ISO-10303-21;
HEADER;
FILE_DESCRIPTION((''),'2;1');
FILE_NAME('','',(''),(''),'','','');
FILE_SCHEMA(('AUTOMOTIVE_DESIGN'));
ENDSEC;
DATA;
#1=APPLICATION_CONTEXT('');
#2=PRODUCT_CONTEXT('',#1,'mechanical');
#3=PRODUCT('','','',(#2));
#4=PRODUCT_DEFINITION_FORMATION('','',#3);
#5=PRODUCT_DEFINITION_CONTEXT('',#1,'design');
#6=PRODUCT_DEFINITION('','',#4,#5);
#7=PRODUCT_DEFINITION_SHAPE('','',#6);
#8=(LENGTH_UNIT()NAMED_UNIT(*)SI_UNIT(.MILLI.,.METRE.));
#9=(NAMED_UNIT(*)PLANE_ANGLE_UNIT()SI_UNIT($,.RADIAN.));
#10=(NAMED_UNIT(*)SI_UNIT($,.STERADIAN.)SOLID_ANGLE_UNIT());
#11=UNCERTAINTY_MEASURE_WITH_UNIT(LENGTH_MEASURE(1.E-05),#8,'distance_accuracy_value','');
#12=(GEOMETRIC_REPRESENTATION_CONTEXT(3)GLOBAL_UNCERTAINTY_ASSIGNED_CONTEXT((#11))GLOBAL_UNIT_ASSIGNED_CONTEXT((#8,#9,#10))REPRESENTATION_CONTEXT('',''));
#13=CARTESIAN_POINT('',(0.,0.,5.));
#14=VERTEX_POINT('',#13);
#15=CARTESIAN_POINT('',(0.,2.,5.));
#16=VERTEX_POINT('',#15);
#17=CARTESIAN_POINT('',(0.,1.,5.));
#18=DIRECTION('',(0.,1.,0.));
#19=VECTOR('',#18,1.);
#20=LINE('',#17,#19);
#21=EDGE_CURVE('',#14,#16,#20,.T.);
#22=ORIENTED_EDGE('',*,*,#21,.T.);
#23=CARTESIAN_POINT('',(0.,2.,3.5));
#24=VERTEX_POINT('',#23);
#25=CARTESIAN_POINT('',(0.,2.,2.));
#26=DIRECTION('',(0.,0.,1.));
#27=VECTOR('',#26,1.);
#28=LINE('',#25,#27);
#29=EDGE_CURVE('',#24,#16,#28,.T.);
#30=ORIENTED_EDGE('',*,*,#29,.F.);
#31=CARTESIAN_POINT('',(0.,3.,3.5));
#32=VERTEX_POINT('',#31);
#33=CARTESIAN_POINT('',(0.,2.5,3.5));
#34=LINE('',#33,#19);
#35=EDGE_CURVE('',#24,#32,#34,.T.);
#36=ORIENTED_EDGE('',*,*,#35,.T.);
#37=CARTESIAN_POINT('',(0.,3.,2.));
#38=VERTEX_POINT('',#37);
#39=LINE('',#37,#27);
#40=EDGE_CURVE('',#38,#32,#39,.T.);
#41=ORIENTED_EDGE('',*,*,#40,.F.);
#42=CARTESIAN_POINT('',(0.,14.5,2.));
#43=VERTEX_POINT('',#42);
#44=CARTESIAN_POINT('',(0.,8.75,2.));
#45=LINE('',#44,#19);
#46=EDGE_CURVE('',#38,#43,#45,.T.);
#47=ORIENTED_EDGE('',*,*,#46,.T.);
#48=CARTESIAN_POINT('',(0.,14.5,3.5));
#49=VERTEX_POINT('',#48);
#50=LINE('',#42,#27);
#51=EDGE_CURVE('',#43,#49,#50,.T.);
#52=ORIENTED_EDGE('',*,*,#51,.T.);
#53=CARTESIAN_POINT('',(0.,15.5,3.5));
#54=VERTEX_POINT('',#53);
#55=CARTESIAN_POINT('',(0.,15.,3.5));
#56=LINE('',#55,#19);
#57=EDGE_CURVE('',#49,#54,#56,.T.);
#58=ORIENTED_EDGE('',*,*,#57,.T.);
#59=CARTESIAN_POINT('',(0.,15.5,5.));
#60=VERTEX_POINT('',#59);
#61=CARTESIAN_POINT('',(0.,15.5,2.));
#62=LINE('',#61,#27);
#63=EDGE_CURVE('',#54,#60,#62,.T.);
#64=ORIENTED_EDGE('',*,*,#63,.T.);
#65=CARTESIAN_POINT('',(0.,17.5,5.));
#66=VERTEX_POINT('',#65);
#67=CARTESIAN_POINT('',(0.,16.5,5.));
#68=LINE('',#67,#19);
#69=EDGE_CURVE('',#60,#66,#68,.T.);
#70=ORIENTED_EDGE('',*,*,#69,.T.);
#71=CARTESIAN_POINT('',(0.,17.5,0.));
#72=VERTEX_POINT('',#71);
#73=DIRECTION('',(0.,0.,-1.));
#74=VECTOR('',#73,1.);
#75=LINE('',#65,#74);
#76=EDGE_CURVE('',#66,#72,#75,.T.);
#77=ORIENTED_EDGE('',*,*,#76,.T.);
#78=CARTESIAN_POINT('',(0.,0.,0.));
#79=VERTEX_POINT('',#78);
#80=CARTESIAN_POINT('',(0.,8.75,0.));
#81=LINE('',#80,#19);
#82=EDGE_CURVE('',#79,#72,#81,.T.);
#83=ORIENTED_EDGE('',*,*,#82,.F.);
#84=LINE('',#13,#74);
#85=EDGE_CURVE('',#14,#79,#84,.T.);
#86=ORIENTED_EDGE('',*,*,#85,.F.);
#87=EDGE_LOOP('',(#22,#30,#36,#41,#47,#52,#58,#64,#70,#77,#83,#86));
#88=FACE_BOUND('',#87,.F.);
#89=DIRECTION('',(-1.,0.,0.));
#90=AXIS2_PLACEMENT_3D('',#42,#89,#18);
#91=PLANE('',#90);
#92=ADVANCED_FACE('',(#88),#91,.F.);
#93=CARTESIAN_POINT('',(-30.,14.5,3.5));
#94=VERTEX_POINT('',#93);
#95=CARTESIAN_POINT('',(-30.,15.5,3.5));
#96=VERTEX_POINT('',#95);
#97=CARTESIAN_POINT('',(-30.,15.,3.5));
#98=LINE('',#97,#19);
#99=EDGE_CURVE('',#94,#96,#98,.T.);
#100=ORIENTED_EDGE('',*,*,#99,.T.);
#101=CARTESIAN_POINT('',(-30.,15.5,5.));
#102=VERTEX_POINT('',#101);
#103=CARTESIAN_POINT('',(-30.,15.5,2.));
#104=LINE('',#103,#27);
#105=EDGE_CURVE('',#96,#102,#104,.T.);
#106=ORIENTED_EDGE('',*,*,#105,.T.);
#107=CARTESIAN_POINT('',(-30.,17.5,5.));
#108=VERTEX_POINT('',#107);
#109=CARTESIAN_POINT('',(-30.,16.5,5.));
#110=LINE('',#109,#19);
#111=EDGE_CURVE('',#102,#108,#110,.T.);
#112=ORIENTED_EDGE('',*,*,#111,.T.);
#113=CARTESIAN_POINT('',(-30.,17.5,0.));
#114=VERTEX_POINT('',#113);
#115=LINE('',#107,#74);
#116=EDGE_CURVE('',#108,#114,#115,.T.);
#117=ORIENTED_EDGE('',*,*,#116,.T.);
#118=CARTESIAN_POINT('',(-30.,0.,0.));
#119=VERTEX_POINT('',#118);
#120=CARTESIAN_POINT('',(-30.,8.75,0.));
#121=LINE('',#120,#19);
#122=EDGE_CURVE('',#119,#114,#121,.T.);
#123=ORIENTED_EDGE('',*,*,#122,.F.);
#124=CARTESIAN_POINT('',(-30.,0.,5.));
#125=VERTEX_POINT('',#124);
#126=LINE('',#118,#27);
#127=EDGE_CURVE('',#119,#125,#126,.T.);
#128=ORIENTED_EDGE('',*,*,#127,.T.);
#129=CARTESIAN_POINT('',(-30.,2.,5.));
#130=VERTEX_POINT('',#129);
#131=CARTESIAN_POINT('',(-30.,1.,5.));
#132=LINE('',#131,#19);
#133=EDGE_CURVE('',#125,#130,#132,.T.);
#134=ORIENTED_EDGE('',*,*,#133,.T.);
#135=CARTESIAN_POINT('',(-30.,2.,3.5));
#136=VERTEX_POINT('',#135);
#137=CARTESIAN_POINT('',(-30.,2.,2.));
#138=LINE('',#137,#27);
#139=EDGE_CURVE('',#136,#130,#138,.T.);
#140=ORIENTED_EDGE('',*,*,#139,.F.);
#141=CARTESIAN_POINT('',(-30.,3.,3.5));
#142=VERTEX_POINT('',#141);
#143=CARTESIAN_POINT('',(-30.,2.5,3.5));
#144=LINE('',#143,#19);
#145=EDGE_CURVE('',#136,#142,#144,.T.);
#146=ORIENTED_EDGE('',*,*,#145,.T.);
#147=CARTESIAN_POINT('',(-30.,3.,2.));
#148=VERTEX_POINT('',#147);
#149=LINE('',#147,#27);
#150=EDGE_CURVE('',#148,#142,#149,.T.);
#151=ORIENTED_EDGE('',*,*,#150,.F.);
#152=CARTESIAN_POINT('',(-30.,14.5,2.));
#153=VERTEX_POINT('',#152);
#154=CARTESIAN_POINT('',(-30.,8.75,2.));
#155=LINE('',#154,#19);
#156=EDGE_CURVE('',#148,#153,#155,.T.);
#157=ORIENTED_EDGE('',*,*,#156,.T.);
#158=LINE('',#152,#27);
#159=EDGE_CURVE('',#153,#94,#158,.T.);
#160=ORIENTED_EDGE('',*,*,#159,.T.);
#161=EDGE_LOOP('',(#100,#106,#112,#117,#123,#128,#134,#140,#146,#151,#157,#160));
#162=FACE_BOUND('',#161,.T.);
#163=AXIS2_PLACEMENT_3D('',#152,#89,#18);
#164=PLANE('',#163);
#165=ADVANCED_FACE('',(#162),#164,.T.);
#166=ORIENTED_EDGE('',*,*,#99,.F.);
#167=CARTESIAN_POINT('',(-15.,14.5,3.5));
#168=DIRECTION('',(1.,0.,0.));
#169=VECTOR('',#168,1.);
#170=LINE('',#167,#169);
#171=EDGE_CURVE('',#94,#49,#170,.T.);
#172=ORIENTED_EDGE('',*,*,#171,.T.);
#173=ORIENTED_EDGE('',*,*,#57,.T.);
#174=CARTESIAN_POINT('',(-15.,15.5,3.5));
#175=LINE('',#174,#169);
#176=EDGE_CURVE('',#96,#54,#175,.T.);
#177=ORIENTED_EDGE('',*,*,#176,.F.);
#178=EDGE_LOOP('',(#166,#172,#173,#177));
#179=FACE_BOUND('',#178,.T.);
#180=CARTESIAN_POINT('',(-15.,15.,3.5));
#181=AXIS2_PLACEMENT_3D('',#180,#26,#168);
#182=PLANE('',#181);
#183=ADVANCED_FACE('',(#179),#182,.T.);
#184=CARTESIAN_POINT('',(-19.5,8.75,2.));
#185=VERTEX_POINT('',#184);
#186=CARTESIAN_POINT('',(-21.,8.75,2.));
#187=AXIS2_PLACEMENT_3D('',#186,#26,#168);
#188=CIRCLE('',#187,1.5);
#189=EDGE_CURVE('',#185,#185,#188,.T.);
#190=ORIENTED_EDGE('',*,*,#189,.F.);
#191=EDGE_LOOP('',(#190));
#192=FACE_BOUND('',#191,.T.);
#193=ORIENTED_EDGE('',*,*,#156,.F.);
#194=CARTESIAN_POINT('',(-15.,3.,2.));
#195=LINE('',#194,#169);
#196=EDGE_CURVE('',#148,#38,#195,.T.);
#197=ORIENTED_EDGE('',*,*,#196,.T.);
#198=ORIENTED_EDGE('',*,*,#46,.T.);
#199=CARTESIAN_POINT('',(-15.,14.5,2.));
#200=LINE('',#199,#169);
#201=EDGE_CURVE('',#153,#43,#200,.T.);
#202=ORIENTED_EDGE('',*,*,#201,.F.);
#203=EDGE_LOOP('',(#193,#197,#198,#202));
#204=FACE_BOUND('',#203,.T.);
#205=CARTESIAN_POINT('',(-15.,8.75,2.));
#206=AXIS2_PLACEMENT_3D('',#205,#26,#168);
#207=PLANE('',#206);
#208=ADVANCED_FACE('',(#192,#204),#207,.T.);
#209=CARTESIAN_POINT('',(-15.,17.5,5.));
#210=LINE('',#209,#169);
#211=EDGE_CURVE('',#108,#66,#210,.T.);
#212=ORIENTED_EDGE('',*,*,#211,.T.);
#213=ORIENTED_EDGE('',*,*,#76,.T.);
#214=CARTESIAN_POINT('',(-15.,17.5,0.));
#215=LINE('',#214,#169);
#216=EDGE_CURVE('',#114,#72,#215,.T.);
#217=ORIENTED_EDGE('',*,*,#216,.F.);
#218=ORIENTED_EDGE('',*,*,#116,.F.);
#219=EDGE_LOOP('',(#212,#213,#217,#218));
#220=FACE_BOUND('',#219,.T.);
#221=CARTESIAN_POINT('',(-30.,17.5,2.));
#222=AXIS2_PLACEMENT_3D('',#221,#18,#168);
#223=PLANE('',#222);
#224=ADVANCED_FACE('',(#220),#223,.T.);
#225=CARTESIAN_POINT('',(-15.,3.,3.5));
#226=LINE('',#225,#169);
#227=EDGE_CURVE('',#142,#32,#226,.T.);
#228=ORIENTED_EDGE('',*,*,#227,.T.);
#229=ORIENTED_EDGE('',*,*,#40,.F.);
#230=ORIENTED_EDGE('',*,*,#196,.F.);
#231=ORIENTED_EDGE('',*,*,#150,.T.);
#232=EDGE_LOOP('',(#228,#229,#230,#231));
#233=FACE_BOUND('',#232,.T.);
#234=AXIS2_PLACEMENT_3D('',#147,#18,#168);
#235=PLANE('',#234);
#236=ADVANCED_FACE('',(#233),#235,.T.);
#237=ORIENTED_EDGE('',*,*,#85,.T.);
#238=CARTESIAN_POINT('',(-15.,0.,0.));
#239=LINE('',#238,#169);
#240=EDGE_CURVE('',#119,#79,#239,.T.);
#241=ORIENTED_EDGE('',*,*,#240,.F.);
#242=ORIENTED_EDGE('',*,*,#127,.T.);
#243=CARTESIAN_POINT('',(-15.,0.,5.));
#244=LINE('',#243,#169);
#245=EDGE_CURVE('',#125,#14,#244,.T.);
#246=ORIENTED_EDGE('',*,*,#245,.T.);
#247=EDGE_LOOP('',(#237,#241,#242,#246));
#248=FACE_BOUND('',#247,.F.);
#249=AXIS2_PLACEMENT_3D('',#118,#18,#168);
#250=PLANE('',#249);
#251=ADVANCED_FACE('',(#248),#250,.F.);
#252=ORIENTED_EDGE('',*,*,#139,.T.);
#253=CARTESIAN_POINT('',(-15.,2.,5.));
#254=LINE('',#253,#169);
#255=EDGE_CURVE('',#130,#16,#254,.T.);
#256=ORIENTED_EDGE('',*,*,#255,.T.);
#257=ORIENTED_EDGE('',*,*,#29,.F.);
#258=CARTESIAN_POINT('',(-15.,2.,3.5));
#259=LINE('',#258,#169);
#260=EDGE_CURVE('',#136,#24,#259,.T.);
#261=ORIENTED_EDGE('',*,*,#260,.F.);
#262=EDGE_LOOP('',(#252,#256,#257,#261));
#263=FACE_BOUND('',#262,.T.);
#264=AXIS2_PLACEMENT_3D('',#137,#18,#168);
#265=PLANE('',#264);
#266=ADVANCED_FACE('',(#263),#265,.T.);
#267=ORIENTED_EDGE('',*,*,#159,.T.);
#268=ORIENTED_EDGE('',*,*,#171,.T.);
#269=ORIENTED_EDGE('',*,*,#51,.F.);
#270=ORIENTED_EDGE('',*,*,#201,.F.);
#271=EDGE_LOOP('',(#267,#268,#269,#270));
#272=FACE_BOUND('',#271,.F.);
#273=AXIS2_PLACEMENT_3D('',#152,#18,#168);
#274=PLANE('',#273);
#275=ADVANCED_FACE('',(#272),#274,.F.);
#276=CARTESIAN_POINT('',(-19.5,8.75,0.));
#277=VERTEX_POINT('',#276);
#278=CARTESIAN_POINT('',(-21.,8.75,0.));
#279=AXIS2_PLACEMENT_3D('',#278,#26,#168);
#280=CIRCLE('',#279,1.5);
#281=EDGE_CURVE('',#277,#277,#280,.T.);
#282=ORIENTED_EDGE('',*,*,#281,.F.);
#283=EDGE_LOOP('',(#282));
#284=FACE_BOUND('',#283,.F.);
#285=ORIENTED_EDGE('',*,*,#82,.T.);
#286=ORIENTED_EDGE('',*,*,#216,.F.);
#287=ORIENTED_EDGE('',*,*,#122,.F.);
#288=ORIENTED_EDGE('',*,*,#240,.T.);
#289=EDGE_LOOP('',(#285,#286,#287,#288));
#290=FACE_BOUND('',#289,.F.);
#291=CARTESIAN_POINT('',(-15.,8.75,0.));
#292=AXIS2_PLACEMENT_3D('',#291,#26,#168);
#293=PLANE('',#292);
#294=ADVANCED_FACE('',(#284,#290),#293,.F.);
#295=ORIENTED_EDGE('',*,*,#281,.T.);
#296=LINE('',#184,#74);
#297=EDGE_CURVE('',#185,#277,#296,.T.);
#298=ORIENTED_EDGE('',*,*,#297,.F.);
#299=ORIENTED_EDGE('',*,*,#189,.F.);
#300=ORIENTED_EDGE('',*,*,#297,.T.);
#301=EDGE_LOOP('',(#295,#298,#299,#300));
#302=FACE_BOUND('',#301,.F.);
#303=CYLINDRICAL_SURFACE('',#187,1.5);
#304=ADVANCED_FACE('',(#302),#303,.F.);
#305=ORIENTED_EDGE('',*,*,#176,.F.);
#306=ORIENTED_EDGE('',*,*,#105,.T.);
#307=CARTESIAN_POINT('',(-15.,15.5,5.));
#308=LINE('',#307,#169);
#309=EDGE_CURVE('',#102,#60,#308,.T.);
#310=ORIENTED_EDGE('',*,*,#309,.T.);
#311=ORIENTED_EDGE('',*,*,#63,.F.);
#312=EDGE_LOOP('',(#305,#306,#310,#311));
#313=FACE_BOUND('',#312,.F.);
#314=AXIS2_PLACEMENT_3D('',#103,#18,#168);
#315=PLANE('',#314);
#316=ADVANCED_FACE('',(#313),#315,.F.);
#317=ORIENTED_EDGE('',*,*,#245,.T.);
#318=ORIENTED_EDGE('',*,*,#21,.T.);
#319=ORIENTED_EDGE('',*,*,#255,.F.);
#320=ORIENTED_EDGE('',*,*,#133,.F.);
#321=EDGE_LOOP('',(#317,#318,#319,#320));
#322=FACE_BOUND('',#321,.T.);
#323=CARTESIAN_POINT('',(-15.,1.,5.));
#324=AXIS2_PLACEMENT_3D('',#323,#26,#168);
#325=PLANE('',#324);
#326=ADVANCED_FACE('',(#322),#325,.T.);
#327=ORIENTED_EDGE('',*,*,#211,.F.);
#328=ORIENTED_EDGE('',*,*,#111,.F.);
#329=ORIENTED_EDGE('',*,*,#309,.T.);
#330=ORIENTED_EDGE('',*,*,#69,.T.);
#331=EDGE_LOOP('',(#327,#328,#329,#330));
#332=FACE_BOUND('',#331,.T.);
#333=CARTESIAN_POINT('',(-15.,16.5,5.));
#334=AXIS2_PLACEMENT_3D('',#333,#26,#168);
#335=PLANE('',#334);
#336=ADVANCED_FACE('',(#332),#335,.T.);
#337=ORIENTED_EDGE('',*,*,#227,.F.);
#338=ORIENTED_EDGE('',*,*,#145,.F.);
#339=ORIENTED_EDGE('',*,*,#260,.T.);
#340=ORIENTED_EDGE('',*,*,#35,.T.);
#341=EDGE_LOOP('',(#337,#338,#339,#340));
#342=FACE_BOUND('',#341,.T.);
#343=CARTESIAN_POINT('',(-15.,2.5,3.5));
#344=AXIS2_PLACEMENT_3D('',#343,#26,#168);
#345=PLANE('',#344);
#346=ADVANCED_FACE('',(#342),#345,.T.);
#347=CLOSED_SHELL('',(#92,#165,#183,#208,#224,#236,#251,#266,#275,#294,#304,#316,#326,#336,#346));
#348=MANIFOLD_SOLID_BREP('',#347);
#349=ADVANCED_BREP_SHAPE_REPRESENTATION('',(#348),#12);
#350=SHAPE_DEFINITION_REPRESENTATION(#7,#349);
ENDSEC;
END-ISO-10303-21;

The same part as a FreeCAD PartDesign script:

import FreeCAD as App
import Part
import Sketcher
Q = App.Units.Quantity

doc = App.newDocument("Part")
body = doc.addObject("PartDesign::Body", "Body")

# Sketch on XY plane
sketch1 = body.newObject("Sketcher::SketchObject", "Sketch")
sketch1.AttachmentSupport = (doc.getObject("XY_Plane"), [""])
sketch1.MapMode = "FlatFace"
sketch1.addGeometry(Part.LineSegment(App.Vector(-30, 18, 0), App.Vector(-30, 0, 0)), False)
sketch1.addGeometry(Part.LineSegment(App.Vector(-30, 0, 0), App.Vector(0, 0, 0)), False)
sketch1.addGeometry(Part.LineSegment(App.Vector(0, 0, 0), App.Vector(0, 18, 0)), False)
sketch1.addGeometry(Part.LineSegment(App.Vector(0, 18, 0), App.Vector(-30, 18, 0)), False)
sketch1.addConstraint(Sketcher.Constraint("Coincident", 0, 2, 1, 1))
sketch1.addConstraint(Sketcher.Constraint("Coincident", 1, 2, 2, 1))
sketch1.addConstraint(Sketcher.Constraint("Coincident", 2, 2, 3, 1))
sketch1.addConstraint(Sketcher.Constraint("Coincident", 3, 2, 0, 1))
sketch1.addConstraint(Sketcher.Constraint("Vertical", 0))
sketch1.addConstraint(Sketcher.Constraint("Horizontal", 1))
sketch1.addConstraint(Sketcher.Constraint("Vertical", 2))
sketch1.addConstraint(Sketcher.Constraint("Horizontal", 3))
sketch1.addConstraint(Sketcher.Constraint("Coincident", 1, 2, -1, 1))
sketch1.addConstraint(Sketcher.Constraint("DistanceX", 1, 1, 1, 2, Q("30 mm")))
sketch1.addConstraint(Sketcher.Constraint("DistanceY", 0, 2, 0, 1, Q("17.5 mm")))
pad1 = body.newObject("PartDesign::Pad", "Pad")
pad1.Profile = sketch1
pad1.Length = 2

# Sketch on XY plane
sketch2 = body.newObject("Sketcher::SketchObject", "Sketch001")
sketch2.AttachmentSupport = (doc.getObject("XY_Plane"), [""])
sketch2.MapMode = "FlatFace"
sketch2.AttachmentOffset = App.Placement(App.Vector(0, 0, 2), App.Rotation())
sketch2.addGeometry(Part.Circle(App.Vector(-21, 8.8, 0), App.Vector(0, 0, 1), 1.5), False)
sketch2.addConstraint(Sketcher.Constraint("Diameter", 0, Q("3 mm")))
sketch2.addConstraint(Sketcher.Constraint("DistanceX", 0, 3, -1, 1, Q("21 mm")))
sketch2.addConstraint(Sketcher.Constraint("DistanceY", -1, 1, 0, 3, Q("8.75 mm")))
pocket1 = body.newObject("PartDesign::Pocket", "Pocket")
pocket1.Profile = sketch2
pocket1.Length = 25

# Sketch on XY plane
sketch3 = body.newObject("Sketcher::SketchObject", "Sketch002")
sketch3.AttachmentSupport = (doc.getObject("XY_Plane"), [""])
sketch3.MapMode = "FlatFace"
sketch3.AttachmentOffset = App.Placement(App.Vector(0, 0, 2), App.Rotation())
sketch3.addGeometry(Part.LineSegment(App.Vector(-30, 17.5, 0), App.Vector(-30, 15.5, 0)), False)
sketch3.addGeometry(Part.LineSegment(App.Vector(-30, 15.5, 0), App.Vector(0, 15.5, 0)), False)
sketch3.addGeometry(Part.LineSegment(App.Vector(0, 15.5, 0), App.Vector(0, 17.5, 0)), False)
sketch3.addGeometry(Part.LineSegment(App.Vector(0, 17.5, 0), App.Vector(-30, 17.5, 0)), False)
sketch3.addGeometry(Part.LineSegment(App.Vector(-30, 2, 0), App.Vector(-30, 0, 0)), False)
sketch3.addGeometry(Part.LineSegment(App.Vector(-30, 0, 0), App.Vector(0, 0, 0)), False)
sketch3.addGeometry(Part.LineSegment(App.Vector(0, 0, 0), App.Vector(0, 2, 0)), False)
sketch3.addGeometry(Part.LineSegment(App.Vector(0, 2, 0), App.Vector(-30, 2, 0)), False)
sketch3.addConstraint(Sketcher.Constraint("Coincident", 0, 2, 1, 1))
sketch3.addConstraint(Sketcher.Constraint("Coincident", 1, 2, 2, 1))
sketch3.addConstraint(Sketcher.Constraint("Coincident", 2, 2, 3, 1))
sketch3.addConstraint(Sketcher.Constraint("Coincident", 3, 2, 0, 1))
sketch3.addConstraint(Sketcher.Constraint("Coincident", 4, 2, 5, 1))
sketch3.addConstraint(Sketcher.Constraint("Coincident", 5, 2, 6, 1))
sketch3.addConstraint(Sketcher.Constraint("Coincident", 6, 2, 7, 1))
sketch3.addConstraint(Sketcher.Constraint("Coincident", 7, 2, 4, 1))
sketch3.addConstraint(Sketcher.Constraint("Vertical", 0))
sketch3.addConstraint(Sketcher.Constraint("Horizontal", 1))
sketch3.addConstraint(Sketcher.Constraint("Vertical", 2))
sketch3.addConstraint(Sketcher.Constraint("Horizontal", 3))
sketch3.addConstraint(Sketcher.Constraint("Vertical", 4))
sketch3.addConstraint(Sketcher.Constraint("Horizontal", 5))
sketch3.addConstraint(Sketcher.Constraint("Vertical", 6))
sketch3.addConstraint(Sketcher.Constraint("Horizontal", 7))
sketch3.addConstraint(Sketcher.Constraint("Coincident", 5, 2, -1, 1))
sketch3.addConstraint(Sketcher.Constraint("PointOnObject", 1, 2, -2))
sketch3.addConstraint(Sketcher.Constraint("Vertical", 3, 2, 4, 2))
sketch3.addConstraint(Sketcher.Constraint("Equal", 2, 4))
sketch3.addConstraint(Sketcher.Constraint("DistanceX", 1, 1, 1, 2, Q("30 mm")))
sketch3.addConstraint(Sketcher.Constraint("DistanceY", 0, 2, 0, 1, Q("2 mm")))
sketch3.addConstraint(Sketcher.Constraint("DistanceY", -1, 1, 0, 2, Q("15.5 mm")))
pad2 = body.newObject("PartDesign::Pad", "Pad001")
pad2.Profile = sketch3
pad2.Length = 3

# Sketch on XY plane
sketch4 = body.newObject("Sketcher::SketchObject", "Sketch003")
sketch4.AttachmentSupport = (doc.getObject("XY_Plane"), [""])
sketch4.MapMode = "FlatFace"
sketch4.AttachmentOffset = App.Placement(App.Vector(0, 0, 2), App.Rotation())
sketch4.addGeometry(Part.LineSegment(App.Vector(-30, 15.5, 0), App.Vector(-30, 14.5, 0)), False)
sketch4.addGeometry(Part.LineSegment(App.Vector(-30, 14.5, 0), App.Vector(0, 14.5, 0)), False)
sketch4.addGeometry(Part.LineSegment(App.Vector(0, 14.5, 0), App.Vector(0, 15.5, 0)), False)
sketch4.addGeometry(Part.LineSegment(App.Vector(0, 15.5, 0), App.Vector(-30, 15.5, 0)), False)
sketch4.addGeometry(Part.LineSegment(App.Vector(-30, 3, 0), App.Vector(-30, 2, 0)), False)
sketch4.addGeometry(Part.LineSegment(App.Vector(-30, 2, 0), App.Vector(0, 2, 0)), False)
sketch4.addGeometry(Part.LineSegment(App.Vector(0, 2, 0), App.Vector(0, 3, 0)), False)
sketch4.addGeometry(Part.LineSegment(App.Vector(0, 3, 0), App.Vector(-30, 3, 0)), False)
sketch4.addConstraint(Sketcher.Constraint("Coincident", 0, 2, 1, 1))
sketch4.addConstraint(Sketcher.Constraint("Coincident", 1, 2, 2, 1))
sketch4.addConstraint(Sketcher.Constraint("Coincident", 2, 2, 3, 1))
sketch4.addConstraint(Sketcher.Constraint("Coincident", 3, 2, 0, 1))
sketch4.addConstraint(Sketcher.Constraint("Coincident", 4, 2, 5, 1))
sketch4.addConstraint(Sketcher.Constraint("Coincident", 5, 2, 6, 1))
sketch4.addConstraint(Sketcher.Constraint("Coincident", 6, 2, 7, 1))
sketch4.addConstraint(Sketcher.Constraint("Coincident", 7, 2, 4, 1))
sketch4.addConstraint(Sketcher.Constraint("Vertical", 0))
sketch4.addConstraint(Sketcher.Constraint("Horizontal", 1))
sketch4.addConstraint(Sketcher.Constraint("Vertical", 2))
sketch4.addConstraint(Sketcher.Constraint("Horizontal", 3))
sketch4.addConstraint(Sketcher.Constraint("Vertical", 4))
sketch4.addConstraint(Sketcher.Constraint("Horizontal", 5))
sketch4.addConstraint(Sketcher.Constraint("Vertical", 6))
sketch4.addConstraint(Sketcher.Constraint("Horizontal", 7))
sketch4.addConstraint(Sketcher.Constraint("PointOnObject", 1, 2, -2))
sketch4.addConstraint(Sketcher.Constraint("PointOnObject", 5, 2, -2))
sketch4.addConstraint(Sketcher.Constraint("Vertical", 3, 2, 4, 2))
sketch4.addConstraint(Sketcher.Constraint("Equal", 2, 4))
sketch4.addConstraint(Sketcher.Constraint("DistanceX", 1, 1, 1, 2, Q("30 mm")))
sketch4.addConstraint(Sketcher.Constraint("DistanceY", 0, 2, 0, 1, Q("1 mm")))
sketch4.addConstraint(Sketcher.Constraint("DistanceY", -1, 1, 4, 2, Q("2 mm")))
sketch4.addConstraint(Sketcher.Constraint("DistanceY", -1, 1, 0, 2, Q("14.5 mm")))
pad3 = body.newObject("PartDesign::Pad", "Pad002")
pad3.Profile = sketch4
pad3.Length = 1.5

doc.recompute()
